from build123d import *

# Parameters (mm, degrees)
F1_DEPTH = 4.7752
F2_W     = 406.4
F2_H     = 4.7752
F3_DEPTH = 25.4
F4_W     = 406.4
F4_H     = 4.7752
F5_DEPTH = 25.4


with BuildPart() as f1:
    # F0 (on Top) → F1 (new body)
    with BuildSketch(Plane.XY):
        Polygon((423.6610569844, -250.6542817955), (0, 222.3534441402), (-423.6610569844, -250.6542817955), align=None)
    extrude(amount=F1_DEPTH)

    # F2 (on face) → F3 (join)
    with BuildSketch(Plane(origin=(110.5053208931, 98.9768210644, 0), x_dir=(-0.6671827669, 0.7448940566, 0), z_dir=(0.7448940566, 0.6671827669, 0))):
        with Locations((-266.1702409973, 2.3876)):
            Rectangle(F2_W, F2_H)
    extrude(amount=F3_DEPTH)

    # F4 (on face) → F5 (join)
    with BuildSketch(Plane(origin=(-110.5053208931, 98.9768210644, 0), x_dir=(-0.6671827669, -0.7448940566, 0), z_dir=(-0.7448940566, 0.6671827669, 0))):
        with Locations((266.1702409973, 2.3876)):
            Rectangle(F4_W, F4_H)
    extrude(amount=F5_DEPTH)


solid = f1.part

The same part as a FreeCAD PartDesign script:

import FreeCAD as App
import Part
import Sketcher
from FreeCAD import Vector
Q = App.Units.Quantity

doc = App.newDocument("Part")
params = doc.addObject("Spreadsheet::Sheet", "Params")
for row, (alias, value) in enumerate([
    ("sketch1_length", "25 in"),
    ("pad1_length", "0.188 in"),
    ("sketch2_width", "16 in"),
    ("sketch2_height", "0.188 in"),
    ("pad2_length", "1 in"),
    ("sketch3_width", "16 in"),
    ("sketch3_height", "0.188 in"),
    ("pad3_length", "1 in"),
], start=1):
    params.set(f"A{row}", alias)
    params.set(f"B{row}", "=" + value)
    params.setAlias(f"B{row}", alias)

body = doc.addObject("PartDesign::Body", "Body")

# Sketch on XY plane
sketch1 = doc.addObject("Sketcher::SketchObject", "Sketch")
body.addObject(sketch1)
sketch1.AttachmentSupport = (doc.XY_Plane, [""])
sketch1.MapMode = "FlatFace"
sketch1.addGeometry(Part.LineSegment(Vector(424, -251, 0), Vector(0, 222, 0)), False)
sketch1.addGeometry(Part.LineSegment(Vector(0, 222, 0), Vector(-424, -251, 0)), False)
sketch1.addGeometry(Part.LineSegment(Vector(-424, -251, 0), Vector(424, -251, 0)), False)
sketch1.addConstraint(Sketcher.Constraint("Coincident", 0, 2, 1, 1))
sketch1.addConstraint(Sketcher.Constraint("Coincident", 1, 2, 2, 1))
sketch1.addConstraint(Sketcher.Constraint("Coincident", 2, 2, 0, 1))
sketch1.addConstraint(Sketcher.Constraint("Horizontal", 2))
sketch1.addConstraint(Sketcher.Constraint("PointOnObject", 0, 2, -2))
sketch1.addConstraint(Sketcher.Constraint("Equal", 0, 1))
sketch1.addConstraint(Sketcher.Constraint("Distance", 0, Q("25 in")))
sketch1.addConstraint(Sketcher.Constraint("Angle", 0, Q("131.85 deg")))
sketch1.addConstraint(Sketcher.Constraint("DistanceY", 1, 2, -1, 1, 250.654282))
sketch1.setExpression("Constraints[6]", "Params.sketch1_length")
pad1 = doc.addObject("PartDesign::Pad", "Pad")
body.addObject(pad1)
pad1.Profile = sketch1
pad1.setExpression("Length", "Params.pad1_length")

# Sketch on an angled plane
sketch2 = doc.addObject("Sketcher::SketchObject", "Sketch001")
body.addObject(sketch2)
sketch2.Placement = App.Placement(Vector(110.505321, 98.976821, 0), App.Rotation(Vector(-0.667182767, 0.744894057, 0), Vector(0, 0, 1.000000001), Vector(0.744894057, 0.667182767, 0), "ZXY"))
sketch2.addGeometry(Part.LineSegment(Vector(-469.4, 4.8, 0), Vector(-469.4, 0, 0)), False)
sketch2.addGeometry(Part.LineSegment(Vector(-469.4, 0, 0), Vector(-63, 0, 0)), False)
sketch2.addGeometry(Part.LineSegment(Vector(-63, 0, 0), Vector(-63, 4.8, 0)), False)
sketch2.addGeometry(Part.LineSegment(Vector(-63, 4.8, 0), Vector(-469.4, 4.8, 0)), False)
sketch2.addConstraint(Sketcher.Constraint("Coincident", 0, 2, 1, 1))
sketch2.addConstraint(Sketcher.Constraint("Coincident", 1, 2, 2, 1))
sketch2.addConstraint(Sketcher.Constraint("Coincident", 2, 2, 3, 1))
sketch2.addConstraint(Sketcher.Constraint("Coincident", 3, 2, 0, 1))
sketch2.addConstraint(Sketcher.Constraint("Vertical", 0))
sketch2.addConstraint(Sketcher.Constraint("Horizontal", 1))
sketch2.addConstraint(Sketcher.Constraint("Vertical", 2))
sketch2.addConstraint(Sketcher.Constraint("Horizontal", 3))
sketch2.addConstraint(Sketcher.Constraint("PointOnObject", 0, 2, -1))
sketch2.addConstraint(Sketcher.Constraint("DistanceX", 1, 1, 1, 2, Q("16 in")))
sketch2.addConstraint(Sketcher.Constraint("DistanceY", 0, 2, 0, 1, Q("0.188 in")))
sketch2.addConstraint(Sketcher.Constraint("DistanceX", 0, 2, -1, 1, 469.370241))
sketch2.setExpression("Constraints[9]", "Params.sketch2_width")
sketch2.setExpression("Constraints[10]", "Params.sketch2_height")
pad2 = doc.addObject("PartDesign::Pad", "Pad001")
body.addObject(pad2)
pad2.Profile = sketch2
pad2.setExpression("Length", "Params.pad2_length")

# Sketch on an angled plane
sketch3 = doc.addObject("Sketcher::SketchObject", "Sketch002")
body.addObject(sketch3)
sketch3.Placement = App.Placement(Vector(-110.505321, 98.976821, 0), App.Rotation(Vector(-0.667182767, -0.744894057, 0), Vector(0, 0, 1.000000001), Vector(-0.744894057, 0.667182767, 0), "ZXY"))
sketch3.addGeometry(Part.LineSegment(Vector(63, 4.8, 0), Vector(63, 0, 0)), False)
sketch3.addGeometry(Part.LineSegment(Vector(63, 0, 0), Vector(469.4, 0, 0)), False)
sketch3.addGeometry(Part.LineSegment(Vector(469.4, 0, 0), Vector(469.4, 4.8, 0)), False)
sketch3.addGeometry(Part.LineSegment(Vector(469.4, 4.8, 0), Vector(63, 4.8, 0)), False)
sketch3.addConstraint(Sketcher.Constraint("Coincident", 0, 2, 1, 1))
sketch3.addConstraint(Sketcher.Constraint("Coincident", 1, 2, 2, 1))
sketch3.addConstraint(Sketcher.Constraint("Coincident", 2, 2, 3, 1))
sketch3.addConstraint(Sketcher.Constraint("Coincident", 3, 2, 0, 1))
sketch3.addConstraint(Sketcher.Constraint("Vertical", 0))
sketch3.addConstraint(Sketcher.Constraint("Horizontal", 1))
sketch3.addConstraint(Sketcher.Constraint("Vertical", 2))
sketch3.addConstraint(Sketcher.Constraint("Horizontal", 3))
sketch3.addConstraint(Sketcher.Constraint("PointOnObject", 0, 2, -1))
sketch3.addConstraint(Sketcher.Constraint("DistanceX", 1, 1, 1, 2, Q("16 in")))
sketch3.addConstraint(Sketcher.Constraint("DistanceY", 0, 2, 0, 1, Q("0.188 in")))
sketch3.addConstraint(Sketcher.Constraint("DistanceX", -1, 1, 0, 2, 62.970241))
sketch3.setExpression("Constraints[9]", "Params.sketch3_width")
sketch3.setExpression("Constraints[10]", "Params.sketch3_height")
pad3 = doc.addObject("PartDesign::Pad", "Pad002")
body.addObject(pad3)
pad3.Profile = sketch3
pad3.setExpression("Length", "Params.pad3_length")

doc.recompute()
